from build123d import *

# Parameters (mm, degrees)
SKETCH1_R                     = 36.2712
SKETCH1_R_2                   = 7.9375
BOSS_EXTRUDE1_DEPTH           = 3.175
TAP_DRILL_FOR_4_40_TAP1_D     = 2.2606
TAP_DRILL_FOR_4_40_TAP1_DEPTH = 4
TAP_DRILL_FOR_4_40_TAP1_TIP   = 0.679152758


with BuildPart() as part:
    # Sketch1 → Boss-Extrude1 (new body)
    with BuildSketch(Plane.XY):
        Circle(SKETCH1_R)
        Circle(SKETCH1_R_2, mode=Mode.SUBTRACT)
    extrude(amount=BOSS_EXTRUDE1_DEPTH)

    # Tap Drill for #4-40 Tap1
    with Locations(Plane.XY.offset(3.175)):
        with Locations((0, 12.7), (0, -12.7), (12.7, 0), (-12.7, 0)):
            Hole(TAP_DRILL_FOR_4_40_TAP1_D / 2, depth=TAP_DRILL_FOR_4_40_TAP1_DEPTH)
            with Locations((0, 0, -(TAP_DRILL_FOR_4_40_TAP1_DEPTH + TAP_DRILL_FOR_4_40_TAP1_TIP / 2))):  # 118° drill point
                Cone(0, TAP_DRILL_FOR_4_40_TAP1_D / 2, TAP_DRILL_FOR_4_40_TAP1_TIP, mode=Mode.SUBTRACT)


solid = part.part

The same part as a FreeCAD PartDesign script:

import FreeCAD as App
import Part
import Sketcher

V = App.Vector
Q = App.Units.Quantity

doc = App.newDocument("Part")
body = doc.addObject("PartDesign::Body", "Body")

# Sketch on XY plane
sketch1 = body.newObject("Sketcher::SketchObject", "Sketch")
sketch1.AttachmentSupport = (doc.getObject("XY_Plane"), [""])
sketch1.MapMode = "FlatFace"
sketch1.addGeometry([
    Part.Circle(V(0, 0, 0), V(0, 0, 1), 36),
    Part.Circle(V(0, 0, 0), V(0, 0, 1), 8),
], False)
sketch1.addConstraint([
    Sketcher.Constraint("Coincident", 0, 3, -1, 1),
    Sketcher.Constraint("Coincident", 1, 3, -1, 1),
    Sketcher.Constraint("Diameter", 0, Q("2.856 in")),
    Sketcher.Constraint("Diameter", 1, Q("0.625 in")),
])
pad1 = body.newObject("PartDesign::Pad", "Pad")
pad1.Profile = sketch1
pad1.Length = Q("0.125 in")

# Sketch on XY plane
sketch2 = body.newObject("Sketcher::SketchObject", "Sketch001")
sketch2.AttachmentSupport = (doc.getObject("XY_Plane"), [""])
sketch2.MapMode = "FlatFace"
sketch2.AttachmentOffset = App.Placement(V(0, 0, 0.125 * 25.4), App.Rotation())
sketch2.addGeometry([
    Part.Circle(V(0, 12.7, 0), V(0, 0, 1), 1.1),
    Part.Circle(V(0, -12.7, 0), V(0, 0, 1), 1.1),
    Part.Circle(V(12.7, 0, 0), V(0, 0, 1), 1.1),
    Part.Circle(V(-12.7, 0, 0), V(0, 0, 1), 1.1),
], False)
sketch2.addConstraint([
    Sketcher.Constraint("Equal", 0, 1),
    Sketcher.Constraint("Equal", 1, 2),
    Sketcher.Constraint("Equal", 2, 3),
    Sketcher.Constraint("Symmetric", 0, 3, 1, 3, -1, 1),
    Sketcher.Constraint("Symmetric", 2, 3, 3, 3, -1, 1),
    Sketcher.Constraint("PointOnObject", 0, 3, -2),
    Sketcher.Constraint("PointOnObject", 2, 3, -1),
    Sketcher.Constraint("Diameter", 0, Q("0.089 in")),
    Sketcher.Constraint("DistanceY", 1, 3, 0, 3, Q("1 in")),
    Sketcher.Constraint("DistanceX", 3, 3, 2, 3, Q("1 in")),
])
doc.recompute()
hole = body.newObject("PartDesign::Hole", "Hole")
hole.Profile = sketch2
hole.ThreadType = "None"
hole.Diameter = Q("0.089 in")
hole.DepthType = "Dimension"
hole.Depth = 4
hole.DrillPoint = "Angled"
hole.DrillPointAngle = 118

doc.recompute()
